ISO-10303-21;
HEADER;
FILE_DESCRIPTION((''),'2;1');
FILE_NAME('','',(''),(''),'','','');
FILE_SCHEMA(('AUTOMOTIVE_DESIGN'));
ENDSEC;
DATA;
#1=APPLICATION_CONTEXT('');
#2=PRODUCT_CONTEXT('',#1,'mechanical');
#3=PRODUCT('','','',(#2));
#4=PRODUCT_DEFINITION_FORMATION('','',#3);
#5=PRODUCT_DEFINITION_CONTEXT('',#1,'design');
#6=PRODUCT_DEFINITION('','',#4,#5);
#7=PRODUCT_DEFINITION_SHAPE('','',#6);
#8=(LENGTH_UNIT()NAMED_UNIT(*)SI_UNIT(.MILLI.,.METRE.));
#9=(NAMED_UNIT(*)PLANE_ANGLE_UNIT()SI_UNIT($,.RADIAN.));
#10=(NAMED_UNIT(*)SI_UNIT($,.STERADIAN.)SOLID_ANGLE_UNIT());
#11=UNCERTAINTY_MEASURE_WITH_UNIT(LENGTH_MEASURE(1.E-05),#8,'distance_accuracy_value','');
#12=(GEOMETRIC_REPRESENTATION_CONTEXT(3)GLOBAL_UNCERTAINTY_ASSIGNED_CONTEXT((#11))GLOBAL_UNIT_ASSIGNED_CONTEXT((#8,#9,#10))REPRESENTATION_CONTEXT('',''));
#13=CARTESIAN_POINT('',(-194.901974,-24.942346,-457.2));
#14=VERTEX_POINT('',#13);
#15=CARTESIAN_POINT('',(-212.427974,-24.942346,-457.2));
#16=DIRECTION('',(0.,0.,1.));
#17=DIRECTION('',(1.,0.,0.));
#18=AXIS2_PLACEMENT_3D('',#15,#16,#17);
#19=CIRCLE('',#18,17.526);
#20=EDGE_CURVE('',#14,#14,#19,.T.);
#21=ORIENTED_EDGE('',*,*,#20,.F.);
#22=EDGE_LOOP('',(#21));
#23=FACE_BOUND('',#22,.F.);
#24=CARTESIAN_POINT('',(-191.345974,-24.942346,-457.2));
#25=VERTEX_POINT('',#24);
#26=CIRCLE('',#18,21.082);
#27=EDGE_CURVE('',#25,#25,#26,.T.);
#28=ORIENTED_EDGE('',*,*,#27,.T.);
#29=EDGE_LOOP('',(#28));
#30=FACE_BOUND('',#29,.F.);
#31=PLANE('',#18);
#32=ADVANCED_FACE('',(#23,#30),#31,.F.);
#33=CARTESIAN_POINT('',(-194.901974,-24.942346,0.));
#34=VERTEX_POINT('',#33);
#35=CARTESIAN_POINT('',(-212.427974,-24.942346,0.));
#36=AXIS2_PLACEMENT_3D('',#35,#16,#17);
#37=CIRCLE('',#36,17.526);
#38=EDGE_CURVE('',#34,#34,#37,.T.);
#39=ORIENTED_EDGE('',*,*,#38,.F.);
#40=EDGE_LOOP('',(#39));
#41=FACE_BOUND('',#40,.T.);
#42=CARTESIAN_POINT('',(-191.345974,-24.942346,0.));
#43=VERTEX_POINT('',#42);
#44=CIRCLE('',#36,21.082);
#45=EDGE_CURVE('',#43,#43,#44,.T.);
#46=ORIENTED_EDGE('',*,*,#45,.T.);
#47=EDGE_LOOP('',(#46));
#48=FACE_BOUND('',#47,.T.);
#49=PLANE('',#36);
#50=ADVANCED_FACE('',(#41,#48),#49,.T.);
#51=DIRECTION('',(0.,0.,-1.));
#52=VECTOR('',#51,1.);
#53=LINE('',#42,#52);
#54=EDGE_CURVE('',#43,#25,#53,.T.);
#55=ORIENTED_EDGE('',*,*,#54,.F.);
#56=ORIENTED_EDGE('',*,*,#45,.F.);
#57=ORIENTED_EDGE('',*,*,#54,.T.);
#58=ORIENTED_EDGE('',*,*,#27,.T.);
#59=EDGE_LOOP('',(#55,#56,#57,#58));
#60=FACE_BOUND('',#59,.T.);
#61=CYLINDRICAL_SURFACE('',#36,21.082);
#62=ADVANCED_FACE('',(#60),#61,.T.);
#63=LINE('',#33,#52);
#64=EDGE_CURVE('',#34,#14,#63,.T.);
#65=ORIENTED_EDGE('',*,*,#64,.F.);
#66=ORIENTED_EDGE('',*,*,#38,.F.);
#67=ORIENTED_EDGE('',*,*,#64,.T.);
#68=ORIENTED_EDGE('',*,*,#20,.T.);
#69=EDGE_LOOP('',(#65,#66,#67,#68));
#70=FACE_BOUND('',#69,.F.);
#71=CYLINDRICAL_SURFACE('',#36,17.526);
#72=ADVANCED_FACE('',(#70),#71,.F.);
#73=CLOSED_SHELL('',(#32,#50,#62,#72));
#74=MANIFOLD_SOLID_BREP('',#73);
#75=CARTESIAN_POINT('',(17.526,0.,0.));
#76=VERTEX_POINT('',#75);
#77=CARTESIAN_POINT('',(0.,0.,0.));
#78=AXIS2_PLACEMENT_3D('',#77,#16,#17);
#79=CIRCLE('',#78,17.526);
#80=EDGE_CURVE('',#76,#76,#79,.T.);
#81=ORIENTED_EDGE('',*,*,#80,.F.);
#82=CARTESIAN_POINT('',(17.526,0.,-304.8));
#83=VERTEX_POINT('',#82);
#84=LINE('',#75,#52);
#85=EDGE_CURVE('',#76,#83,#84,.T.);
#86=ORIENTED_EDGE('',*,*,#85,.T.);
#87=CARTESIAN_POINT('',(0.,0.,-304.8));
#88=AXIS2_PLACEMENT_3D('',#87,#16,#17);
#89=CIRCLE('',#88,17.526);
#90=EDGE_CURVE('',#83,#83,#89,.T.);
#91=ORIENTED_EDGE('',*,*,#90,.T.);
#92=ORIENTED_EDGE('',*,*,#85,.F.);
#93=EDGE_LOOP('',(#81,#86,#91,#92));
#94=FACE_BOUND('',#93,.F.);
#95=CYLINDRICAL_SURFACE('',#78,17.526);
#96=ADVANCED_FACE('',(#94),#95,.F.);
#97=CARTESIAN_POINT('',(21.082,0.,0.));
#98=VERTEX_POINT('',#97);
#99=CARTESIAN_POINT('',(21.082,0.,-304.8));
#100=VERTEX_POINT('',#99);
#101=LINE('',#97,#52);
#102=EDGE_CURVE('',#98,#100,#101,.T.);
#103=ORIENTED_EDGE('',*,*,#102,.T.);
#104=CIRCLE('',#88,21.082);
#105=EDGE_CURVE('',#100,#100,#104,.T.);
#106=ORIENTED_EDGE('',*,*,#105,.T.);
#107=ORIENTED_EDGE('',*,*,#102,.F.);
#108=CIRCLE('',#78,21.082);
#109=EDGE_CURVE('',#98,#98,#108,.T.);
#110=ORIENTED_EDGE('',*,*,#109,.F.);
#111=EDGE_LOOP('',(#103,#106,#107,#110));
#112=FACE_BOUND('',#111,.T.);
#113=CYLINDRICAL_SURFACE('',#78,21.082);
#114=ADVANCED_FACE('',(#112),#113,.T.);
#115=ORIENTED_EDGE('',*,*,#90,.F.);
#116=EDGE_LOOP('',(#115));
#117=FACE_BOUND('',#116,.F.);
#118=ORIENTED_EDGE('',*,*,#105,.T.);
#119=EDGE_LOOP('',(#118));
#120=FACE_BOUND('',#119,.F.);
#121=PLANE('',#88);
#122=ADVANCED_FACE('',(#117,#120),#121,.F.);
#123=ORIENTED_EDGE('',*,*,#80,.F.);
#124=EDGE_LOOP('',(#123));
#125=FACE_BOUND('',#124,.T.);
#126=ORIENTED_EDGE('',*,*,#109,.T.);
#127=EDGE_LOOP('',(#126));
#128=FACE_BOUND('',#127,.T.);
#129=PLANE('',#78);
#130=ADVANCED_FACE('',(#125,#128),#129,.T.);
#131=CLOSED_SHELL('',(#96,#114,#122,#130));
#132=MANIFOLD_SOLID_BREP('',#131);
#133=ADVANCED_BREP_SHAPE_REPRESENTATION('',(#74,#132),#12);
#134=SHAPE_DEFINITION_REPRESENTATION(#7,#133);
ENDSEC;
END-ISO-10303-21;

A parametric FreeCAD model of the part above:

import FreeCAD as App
import Part
import Sketcher
from FreeCAD import Vector
Q = App.Units.Quantity

doc = App.newDocument("Part")
body = doc.addObject("PartDesign::Body", "Body")

# Sketch on XY plane
sketch1 = doc.addObject("Sketcher::SketchObject", "Sketch")
body.addObject(sketch1)
sketch1.AttachmentSupport = (doc.XY_Plane, [""])
sketch1.MapMode = "FlatFace"
sketch1.addGeometry([
    Part.Circle(Vector(0, 0, 0), Vector(0, 0, 1), 21),
    Part.Circle(Vector(0, 0, 0), Vector(0, 0, 1), 18),
], False)
sketch1.addConstraint([
    Sketcher.Constraint("Coincident", 0, 3, -1, 1),
    Sketcher.Constraint("Coincident", 1, 3, -1, 1),
    Sketcher.Constraint("Diameter", 0, Q("1.66 in")),
    Sketcher.Constraint("Diameter", 1, Q("1.38 in")),
])
pad1 = doc.addObject("PartDesign::Pad", "Pad")
body.addObject(pad1)
pad1.Profile = sketch1
pad1.Length = Q("12 in")
pad1.Reversed = True
body2 = doc.addObject("PartDesign::Body", "Body001")

# Sketch on XY plane
sketch2 = doc.addObject("Sketcher::SketchObject", "Sketch001")
body2.addObject(sketch2)
sketch2.AttachmentSupport = (doc.getObject("XY_Plane001"), [""])
sketch2.MapMode = "FlatFace"
sketch2.addGeometry([
    Part.Circle(Vector(-212, -25, 0), Vector(0, 0, 1), 21),
    Part.Circle(Vector(-212, -25, 0), Vector(0, 0, 1), 18),
], False)
sketch2.addConstraint([
    Sketcher.Constraint("Coincident", 1, 3, 0, 3),
    Sketcher.Constraint("Diameter", 0, Q("1.66 in")),
    Sketcher.Constraint("Diameter", 1, Q("1.38 in")),
    Sketcher.Constraint("DistanceX", 0, 3, -1, 1, 212.427974),
    Sketcher.Constraint("DistanceY", 0, 3, -1, 1, 24.942346),
])
pad2 = doc.addObject("PartDesign::Pad", "Pad001")
body2.addObject(pad2)
pad2.Profile = sketch2
pad2.Length = Q("18 in")
pad2.Reversed = True

doc.recompute()
